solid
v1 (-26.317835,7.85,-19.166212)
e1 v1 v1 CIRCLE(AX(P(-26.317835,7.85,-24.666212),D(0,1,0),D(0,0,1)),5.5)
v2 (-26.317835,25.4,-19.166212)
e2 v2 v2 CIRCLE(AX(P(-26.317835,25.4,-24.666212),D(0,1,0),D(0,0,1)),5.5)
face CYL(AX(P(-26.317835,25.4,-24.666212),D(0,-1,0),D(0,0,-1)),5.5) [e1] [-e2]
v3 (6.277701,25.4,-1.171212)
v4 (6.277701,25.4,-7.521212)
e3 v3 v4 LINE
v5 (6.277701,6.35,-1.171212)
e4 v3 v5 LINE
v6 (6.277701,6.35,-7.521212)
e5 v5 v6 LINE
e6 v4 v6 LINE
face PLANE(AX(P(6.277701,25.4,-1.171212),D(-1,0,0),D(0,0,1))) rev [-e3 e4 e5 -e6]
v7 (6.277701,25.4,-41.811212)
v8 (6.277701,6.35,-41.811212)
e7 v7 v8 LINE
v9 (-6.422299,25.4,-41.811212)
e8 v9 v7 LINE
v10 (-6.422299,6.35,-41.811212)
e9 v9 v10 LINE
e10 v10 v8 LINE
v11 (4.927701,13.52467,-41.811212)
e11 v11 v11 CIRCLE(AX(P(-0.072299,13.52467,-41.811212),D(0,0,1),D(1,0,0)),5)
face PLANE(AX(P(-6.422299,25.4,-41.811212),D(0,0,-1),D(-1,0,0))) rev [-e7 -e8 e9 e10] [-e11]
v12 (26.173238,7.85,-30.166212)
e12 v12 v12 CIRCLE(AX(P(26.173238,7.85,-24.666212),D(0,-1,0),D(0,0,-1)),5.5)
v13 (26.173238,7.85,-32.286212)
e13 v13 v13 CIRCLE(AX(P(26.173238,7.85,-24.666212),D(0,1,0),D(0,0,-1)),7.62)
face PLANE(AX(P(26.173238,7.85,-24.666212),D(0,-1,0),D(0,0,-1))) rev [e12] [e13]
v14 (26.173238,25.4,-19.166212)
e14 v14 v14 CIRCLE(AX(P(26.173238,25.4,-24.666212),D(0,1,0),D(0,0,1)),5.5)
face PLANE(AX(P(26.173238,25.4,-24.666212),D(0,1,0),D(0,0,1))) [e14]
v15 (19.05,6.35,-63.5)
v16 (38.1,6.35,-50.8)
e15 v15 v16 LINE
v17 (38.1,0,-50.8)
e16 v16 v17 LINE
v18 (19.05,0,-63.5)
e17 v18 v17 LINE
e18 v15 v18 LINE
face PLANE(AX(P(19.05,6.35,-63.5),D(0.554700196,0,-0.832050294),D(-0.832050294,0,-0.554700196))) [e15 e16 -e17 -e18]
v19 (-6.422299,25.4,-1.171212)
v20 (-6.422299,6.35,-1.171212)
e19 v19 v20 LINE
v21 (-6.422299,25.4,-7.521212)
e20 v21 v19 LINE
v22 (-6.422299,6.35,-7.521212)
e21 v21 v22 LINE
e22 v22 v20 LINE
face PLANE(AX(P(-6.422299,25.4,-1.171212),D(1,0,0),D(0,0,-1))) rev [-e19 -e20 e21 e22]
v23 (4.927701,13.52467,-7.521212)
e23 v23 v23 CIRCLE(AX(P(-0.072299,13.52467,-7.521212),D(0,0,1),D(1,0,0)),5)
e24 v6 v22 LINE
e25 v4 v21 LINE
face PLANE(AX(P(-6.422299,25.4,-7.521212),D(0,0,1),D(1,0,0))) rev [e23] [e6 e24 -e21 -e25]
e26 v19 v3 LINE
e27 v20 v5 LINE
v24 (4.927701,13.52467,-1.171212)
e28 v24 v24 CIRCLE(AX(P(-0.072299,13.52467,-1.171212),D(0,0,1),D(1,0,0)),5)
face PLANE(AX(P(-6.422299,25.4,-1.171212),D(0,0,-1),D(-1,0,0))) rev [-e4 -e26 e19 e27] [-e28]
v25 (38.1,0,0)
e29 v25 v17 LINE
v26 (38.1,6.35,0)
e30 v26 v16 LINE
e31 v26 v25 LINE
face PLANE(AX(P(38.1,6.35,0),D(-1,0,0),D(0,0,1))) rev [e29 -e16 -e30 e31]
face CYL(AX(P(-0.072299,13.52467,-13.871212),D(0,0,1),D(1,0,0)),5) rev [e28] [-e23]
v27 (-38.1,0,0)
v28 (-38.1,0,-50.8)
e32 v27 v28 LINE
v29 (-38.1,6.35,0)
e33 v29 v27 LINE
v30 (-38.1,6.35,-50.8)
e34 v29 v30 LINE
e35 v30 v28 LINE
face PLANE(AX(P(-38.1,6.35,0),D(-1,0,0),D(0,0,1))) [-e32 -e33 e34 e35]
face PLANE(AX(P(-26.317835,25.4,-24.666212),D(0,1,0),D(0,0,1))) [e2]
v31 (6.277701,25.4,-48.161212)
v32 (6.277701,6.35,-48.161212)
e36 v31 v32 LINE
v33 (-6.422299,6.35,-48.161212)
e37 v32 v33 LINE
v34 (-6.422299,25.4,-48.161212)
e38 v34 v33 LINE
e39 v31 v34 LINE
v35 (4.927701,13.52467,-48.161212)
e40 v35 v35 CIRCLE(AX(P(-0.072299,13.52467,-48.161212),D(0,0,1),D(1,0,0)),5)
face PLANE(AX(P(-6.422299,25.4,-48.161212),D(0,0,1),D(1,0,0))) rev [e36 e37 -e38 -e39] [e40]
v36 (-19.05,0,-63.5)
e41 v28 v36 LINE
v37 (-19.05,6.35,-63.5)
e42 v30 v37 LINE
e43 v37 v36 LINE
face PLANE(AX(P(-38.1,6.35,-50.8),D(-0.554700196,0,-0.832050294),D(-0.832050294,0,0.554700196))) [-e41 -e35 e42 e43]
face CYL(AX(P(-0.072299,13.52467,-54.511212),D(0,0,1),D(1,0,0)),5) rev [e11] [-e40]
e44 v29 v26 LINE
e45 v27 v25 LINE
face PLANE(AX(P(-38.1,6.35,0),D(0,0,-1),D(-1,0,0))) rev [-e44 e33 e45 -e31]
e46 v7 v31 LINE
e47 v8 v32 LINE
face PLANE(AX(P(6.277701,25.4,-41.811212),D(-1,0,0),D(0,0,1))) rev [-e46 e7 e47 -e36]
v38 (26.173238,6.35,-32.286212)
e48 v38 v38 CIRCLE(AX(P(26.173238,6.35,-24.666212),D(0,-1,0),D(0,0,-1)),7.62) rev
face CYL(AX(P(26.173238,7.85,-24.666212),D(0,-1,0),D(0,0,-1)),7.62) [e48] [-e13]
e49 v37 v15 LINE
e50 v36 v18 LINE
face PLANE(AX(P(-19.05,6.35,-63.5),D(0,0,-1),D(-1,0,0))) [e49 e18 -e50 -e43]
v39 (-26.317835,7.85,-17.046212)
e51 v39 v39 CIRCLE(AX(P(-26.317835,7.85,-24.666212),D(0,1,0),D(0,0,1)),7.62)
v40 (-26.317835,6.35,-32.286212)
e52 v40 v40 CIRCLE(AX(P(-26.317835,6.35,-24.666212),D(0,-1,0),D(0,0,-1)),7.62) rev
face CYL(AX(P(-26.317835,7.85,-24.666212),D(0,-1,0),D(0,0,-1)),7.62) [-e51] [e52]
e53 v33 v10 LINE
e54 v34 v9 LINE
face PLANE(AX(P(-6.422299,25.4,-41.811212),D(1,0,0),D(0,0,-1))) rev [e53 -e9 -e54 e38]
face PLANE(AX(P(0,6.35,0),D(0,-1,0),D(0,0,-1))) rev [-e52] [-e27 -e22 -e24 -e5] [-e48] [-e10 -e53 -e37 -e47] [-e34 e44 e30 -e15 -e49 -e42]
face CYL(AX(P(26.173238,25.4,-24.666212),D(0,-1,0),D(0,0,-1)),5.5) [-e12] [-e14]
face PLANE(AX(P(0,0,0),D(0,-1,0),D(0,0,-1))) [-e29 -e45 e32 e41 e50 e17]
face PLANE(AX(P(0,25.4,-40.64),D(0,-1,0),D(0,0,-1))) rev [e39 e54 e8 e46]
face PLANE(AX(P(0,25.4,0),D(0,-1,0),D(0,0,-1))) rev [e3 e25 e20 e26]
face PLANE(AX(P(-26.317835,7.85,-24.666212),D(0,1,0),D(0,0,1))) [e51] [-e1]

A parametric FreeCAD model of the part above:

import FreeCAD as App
import Part
import Sketcher

V = App.Vector
Q = App.Units.Quantity

doc = App.newDocument("Part")
body = doc.addObject("PartDesign::Body", "Body")

# Sketch on XZ plane
sketch1 = body.newObject("Sketcher::SketchObject", "Sketch")
sketch1.AttachmentSupport = (doc.getObject("XZ_Plane"), [""])
sketch1.MapMode = "FlatFace"
sketch1.addGeometry([
    Part.LineSegment(V(-38, 0, 0), V(38, 0, 0)),  # 0
    Part.LineSegment(V(38, 0, 0), V(38, -51, 0)),  # 1
    Part.LineSegment(V(38, -51, 0), V(19, -64, 0)),  # 2
    Part.LineSegment(V(19, -64, 0), V(-19, -64, 0)),  # 3
    Part.LineSegment(V(-19, -64, 0), V(-38, -51, 0)),  # 4
    Part.LineSegment(V(-38, -51, 0), V(-38, 0, 0)),  # 5
], False)
sketch1.addConstraint([
    Sketcher.Constraint("Coincident", 0, 2, 1, 1),
    Sketcher.Constraint("Coincident", 1, 2, 2, 1),
    Sketcher.Constraint("Coincident", 2, 2, 3, 1),
    Sketcher.Constraint("Coincident", 3, 2, 4, 1),
    Sketcher.Constraint("Coincident", 4, 2, 5, 1),
    Sketcher.Constraint("Coincident", 5, 2, 0, 1),
    Sketcher.Constraint("Horizontal", 0),
    Sketcher.Constraint("Vertical", 1),
    Sketcher.Constraint("Horizontal", 3),
    Sketcher.Constraint("Vertical", 5),
    Sketcher.Constraint("Symmetric", 0, 2, 5, 2, -1, 1),
    Sketcher.Constraint("Horizontal", 1, 2, 4, 2),
    Sketcher.Constraint("Equal", 2, 4),
    Sketcher.Constraint("DistanceX", 0, 1, 0, 2, Q("3 in")),
    Sketcher.Constraint("DistanceY", 1, 2, 1, 1, Q("2 in")),
    Sketcher.Constraint("DistanceX", 3, 2, 3, 1, Q("1.5 in")),
    Sketcher.Constraint("DistanceY", 2, 2, -1, 1, Q("2.5 in")),
])
pad1 = body.newObject("PartDesign::Pad", "Pad")
pad1.Profile = sketch1
pad1.Length = Q("0.25 in")
pad1.Reversed = True

# Sketch on XZ plane
sketch2 = body.newObject("Sketcher::SketchObject", "Sketch001")
sketch2.AttachmentSupport = (doc.getObject("XZ_Plane"), [""])
sketch2.MapMode = "FlatFace"
sketch2.AttachmentOffset = App.Placement(V(0, 0, -0.25 * 25.4), App.Rotation())
sketch2.addGeometry([
    Part.LineSegment(V(-6, -8, 0), V(-6, -1, 0)),
    Part.LineSegment(V(-6, -1, 0), V(6, -1, 0)),
    Part.LineSegment(V(6, -1, 0), V(6, -8, 0)),
    Part.LineSegment(V(6, -8, 0), V(-6, -8, 0)),
], False)
sketch2.addConstraint([
    Sketcher.Constraint("Coincident", 0, 2, 1, 1),
    Sketcher.Constraint("Coincident", 1, 2, 2, 1),
    Sketcher.Constraint("Coincident", 2, 2, 3, 1),
    Sketcher.Constraint("Coincident", 3, 2, 0, 1),
    Sketcher.Constraint("Vertical", 0),
    Sketcher.Constraint("Horizontal", 1),
    Sketcher.Constraint("Vertical", 2),
    Sketcher.Constraint("Horizontal", 3),
    Sketcher.Constraint("DistanceX", 1, 1, 1, 2, Q("0.5 in")),
    Sketcher.Constraint("DistanceY", 0, 1, 0, 2, Q("0.25 in")),
    Sketcher.Constraint("DistanceX", 0, 2, -1, 1, 6.422299),
    Sketcher.Constraint("DistanceY", 0, 2, -1, 1, 1.171212),
])
pad2 = body.newObject("PartDesign::Pad", "Pad001")
pad2.Profile = sketch2
pad2.Length = Q("0.75 in")
pad2.Reversed = True

# Sketch on XY plane
sketch3 = body.newObject("Sketcher::SketchObject", "Sketch002")
sketch3.AttachmentSupport = (doc.getObject("XY_Plane"), [""])
sketch3.MapMode = "FlatFace"
sketch3.AttachmentOffset = App.Placement(V(0, 0, -1.171212), App.Rotation())
sketch3.addGeometry(Part.Circle(V(0, 14, 0), V(0, 0, 1), 5), False)
sketch3.addConstraint([
    Sketcher.Constraint("Diameter", 0, 10.0),
    Sketcher.Constraint("DistanceX", 0, 3, -1, 1, 0.072299),
    Sketcher.Constraint("DistanceY", -1, 1, 0, 3, 13.52467),
])
pocket1 = body.newObject("PartDesign::Pocket", "Pocket")
pocket1.Profile = sketch3
pocket1.Length = Q("0.5 in")
doc.recompute()

linearpattern = body.newObject("PartDesign::LinearPattern", "LinearPattern")
linearpattern.Originals = [pad2, pocket1]
linearpattern.Direction = (doc.getObject("Z_Axis"), [""])
linearpattern.Mode = "offset"
linearpattern.Offset = Q("1.6 in")
linearpattern.Occurrences = 2
linearpattern.Reversed = True
body.Tip = linearpattern

# Sketch on XZ plane
sketch4 = body.newObject("Sketcher::SketchObject", "Sketch003")
sketch4.AttachmentSupport = (doc.getObject("XZ_Plane"), [""])
sketch4.MapMode = "FlatFace"
sketch4.AttachmentOffset = App.Placement(V(0, 0, -0.25 * 25.4), App.Rotation())
sketch4.addGeometry([
    Part.Circle(V(-26, -25, 0), V(0, 0, 1), 6),
    Part.Circle(V(26, -25, 0), V(0, 0, 1), 6),
], False)
sketch4.addConstraint([
    Sketcher.Constraint("Equal", 0, 1),
    Sketcher.Constraint("Horizontal", 0, 3, 1, 3),
    Sketcher.Constraint("Diameter", 0, 11.0),
    Sketcher.Constraint("DistanceY", 0, 3, -1, 1, 24.666212),
    Sketcher.Constraint("DistanceX", 0, 3, -1, 1, 26.317835),
    Sketcher.Constraint("DistanceX", -1, 1, 1, 3, 26.173238),
])
pad3 = body.newObject("PartDesign::Pad", "Pad002")
pad3.Profile = sketch4
pad3.Length = Q("0.75 in")
pad3.Reversed = True

# Sketch on XZ plane
sketch5 = body.newObject("Sketcher::SketchObject", "Sketch004")
sketch5.AttachmentSupport = (doc.getObject("XZ_Plane"), [""])
sketch5.MapMode = "FlatFace"
sketch5.AttachmentOffset = App.Placement(V(0, 0, -0.25 * 25.4), App.Rotation())
sketch5.addGeometry([
    Part.Circle(V(-26, -25, 0), V(0, 0, 1), 8),
    Part.Circle(V(26, -25, 0), V(0, 0, 1), 8),
], False)
sketch5.addConstraint([
    Sketcher.Constraint("Equal", 0, 1),
    Sketcher.Constraint("Horizontal", 0, 3, 1, 3),
    Sketcher.Constraint("Diameter", 0, Q("0.6 in")),
    Sketcher.Constraint("DistanceY", 0, 3, -1, 1, 24.666212),
    Sketcher.Constraint("DistanceX", 0, 3, -1, 1, 26.317835),
    Sketcher.Constraint("DistanceX", -1, 1, 1, 3, 26.173238),
])
pad4 = body.newObject("PartDesign::Pad", "Pad003")
pad4.Profile = sketch5
pad4.Length = 1.5
pad4.Reversed = True

doc.recompute()
